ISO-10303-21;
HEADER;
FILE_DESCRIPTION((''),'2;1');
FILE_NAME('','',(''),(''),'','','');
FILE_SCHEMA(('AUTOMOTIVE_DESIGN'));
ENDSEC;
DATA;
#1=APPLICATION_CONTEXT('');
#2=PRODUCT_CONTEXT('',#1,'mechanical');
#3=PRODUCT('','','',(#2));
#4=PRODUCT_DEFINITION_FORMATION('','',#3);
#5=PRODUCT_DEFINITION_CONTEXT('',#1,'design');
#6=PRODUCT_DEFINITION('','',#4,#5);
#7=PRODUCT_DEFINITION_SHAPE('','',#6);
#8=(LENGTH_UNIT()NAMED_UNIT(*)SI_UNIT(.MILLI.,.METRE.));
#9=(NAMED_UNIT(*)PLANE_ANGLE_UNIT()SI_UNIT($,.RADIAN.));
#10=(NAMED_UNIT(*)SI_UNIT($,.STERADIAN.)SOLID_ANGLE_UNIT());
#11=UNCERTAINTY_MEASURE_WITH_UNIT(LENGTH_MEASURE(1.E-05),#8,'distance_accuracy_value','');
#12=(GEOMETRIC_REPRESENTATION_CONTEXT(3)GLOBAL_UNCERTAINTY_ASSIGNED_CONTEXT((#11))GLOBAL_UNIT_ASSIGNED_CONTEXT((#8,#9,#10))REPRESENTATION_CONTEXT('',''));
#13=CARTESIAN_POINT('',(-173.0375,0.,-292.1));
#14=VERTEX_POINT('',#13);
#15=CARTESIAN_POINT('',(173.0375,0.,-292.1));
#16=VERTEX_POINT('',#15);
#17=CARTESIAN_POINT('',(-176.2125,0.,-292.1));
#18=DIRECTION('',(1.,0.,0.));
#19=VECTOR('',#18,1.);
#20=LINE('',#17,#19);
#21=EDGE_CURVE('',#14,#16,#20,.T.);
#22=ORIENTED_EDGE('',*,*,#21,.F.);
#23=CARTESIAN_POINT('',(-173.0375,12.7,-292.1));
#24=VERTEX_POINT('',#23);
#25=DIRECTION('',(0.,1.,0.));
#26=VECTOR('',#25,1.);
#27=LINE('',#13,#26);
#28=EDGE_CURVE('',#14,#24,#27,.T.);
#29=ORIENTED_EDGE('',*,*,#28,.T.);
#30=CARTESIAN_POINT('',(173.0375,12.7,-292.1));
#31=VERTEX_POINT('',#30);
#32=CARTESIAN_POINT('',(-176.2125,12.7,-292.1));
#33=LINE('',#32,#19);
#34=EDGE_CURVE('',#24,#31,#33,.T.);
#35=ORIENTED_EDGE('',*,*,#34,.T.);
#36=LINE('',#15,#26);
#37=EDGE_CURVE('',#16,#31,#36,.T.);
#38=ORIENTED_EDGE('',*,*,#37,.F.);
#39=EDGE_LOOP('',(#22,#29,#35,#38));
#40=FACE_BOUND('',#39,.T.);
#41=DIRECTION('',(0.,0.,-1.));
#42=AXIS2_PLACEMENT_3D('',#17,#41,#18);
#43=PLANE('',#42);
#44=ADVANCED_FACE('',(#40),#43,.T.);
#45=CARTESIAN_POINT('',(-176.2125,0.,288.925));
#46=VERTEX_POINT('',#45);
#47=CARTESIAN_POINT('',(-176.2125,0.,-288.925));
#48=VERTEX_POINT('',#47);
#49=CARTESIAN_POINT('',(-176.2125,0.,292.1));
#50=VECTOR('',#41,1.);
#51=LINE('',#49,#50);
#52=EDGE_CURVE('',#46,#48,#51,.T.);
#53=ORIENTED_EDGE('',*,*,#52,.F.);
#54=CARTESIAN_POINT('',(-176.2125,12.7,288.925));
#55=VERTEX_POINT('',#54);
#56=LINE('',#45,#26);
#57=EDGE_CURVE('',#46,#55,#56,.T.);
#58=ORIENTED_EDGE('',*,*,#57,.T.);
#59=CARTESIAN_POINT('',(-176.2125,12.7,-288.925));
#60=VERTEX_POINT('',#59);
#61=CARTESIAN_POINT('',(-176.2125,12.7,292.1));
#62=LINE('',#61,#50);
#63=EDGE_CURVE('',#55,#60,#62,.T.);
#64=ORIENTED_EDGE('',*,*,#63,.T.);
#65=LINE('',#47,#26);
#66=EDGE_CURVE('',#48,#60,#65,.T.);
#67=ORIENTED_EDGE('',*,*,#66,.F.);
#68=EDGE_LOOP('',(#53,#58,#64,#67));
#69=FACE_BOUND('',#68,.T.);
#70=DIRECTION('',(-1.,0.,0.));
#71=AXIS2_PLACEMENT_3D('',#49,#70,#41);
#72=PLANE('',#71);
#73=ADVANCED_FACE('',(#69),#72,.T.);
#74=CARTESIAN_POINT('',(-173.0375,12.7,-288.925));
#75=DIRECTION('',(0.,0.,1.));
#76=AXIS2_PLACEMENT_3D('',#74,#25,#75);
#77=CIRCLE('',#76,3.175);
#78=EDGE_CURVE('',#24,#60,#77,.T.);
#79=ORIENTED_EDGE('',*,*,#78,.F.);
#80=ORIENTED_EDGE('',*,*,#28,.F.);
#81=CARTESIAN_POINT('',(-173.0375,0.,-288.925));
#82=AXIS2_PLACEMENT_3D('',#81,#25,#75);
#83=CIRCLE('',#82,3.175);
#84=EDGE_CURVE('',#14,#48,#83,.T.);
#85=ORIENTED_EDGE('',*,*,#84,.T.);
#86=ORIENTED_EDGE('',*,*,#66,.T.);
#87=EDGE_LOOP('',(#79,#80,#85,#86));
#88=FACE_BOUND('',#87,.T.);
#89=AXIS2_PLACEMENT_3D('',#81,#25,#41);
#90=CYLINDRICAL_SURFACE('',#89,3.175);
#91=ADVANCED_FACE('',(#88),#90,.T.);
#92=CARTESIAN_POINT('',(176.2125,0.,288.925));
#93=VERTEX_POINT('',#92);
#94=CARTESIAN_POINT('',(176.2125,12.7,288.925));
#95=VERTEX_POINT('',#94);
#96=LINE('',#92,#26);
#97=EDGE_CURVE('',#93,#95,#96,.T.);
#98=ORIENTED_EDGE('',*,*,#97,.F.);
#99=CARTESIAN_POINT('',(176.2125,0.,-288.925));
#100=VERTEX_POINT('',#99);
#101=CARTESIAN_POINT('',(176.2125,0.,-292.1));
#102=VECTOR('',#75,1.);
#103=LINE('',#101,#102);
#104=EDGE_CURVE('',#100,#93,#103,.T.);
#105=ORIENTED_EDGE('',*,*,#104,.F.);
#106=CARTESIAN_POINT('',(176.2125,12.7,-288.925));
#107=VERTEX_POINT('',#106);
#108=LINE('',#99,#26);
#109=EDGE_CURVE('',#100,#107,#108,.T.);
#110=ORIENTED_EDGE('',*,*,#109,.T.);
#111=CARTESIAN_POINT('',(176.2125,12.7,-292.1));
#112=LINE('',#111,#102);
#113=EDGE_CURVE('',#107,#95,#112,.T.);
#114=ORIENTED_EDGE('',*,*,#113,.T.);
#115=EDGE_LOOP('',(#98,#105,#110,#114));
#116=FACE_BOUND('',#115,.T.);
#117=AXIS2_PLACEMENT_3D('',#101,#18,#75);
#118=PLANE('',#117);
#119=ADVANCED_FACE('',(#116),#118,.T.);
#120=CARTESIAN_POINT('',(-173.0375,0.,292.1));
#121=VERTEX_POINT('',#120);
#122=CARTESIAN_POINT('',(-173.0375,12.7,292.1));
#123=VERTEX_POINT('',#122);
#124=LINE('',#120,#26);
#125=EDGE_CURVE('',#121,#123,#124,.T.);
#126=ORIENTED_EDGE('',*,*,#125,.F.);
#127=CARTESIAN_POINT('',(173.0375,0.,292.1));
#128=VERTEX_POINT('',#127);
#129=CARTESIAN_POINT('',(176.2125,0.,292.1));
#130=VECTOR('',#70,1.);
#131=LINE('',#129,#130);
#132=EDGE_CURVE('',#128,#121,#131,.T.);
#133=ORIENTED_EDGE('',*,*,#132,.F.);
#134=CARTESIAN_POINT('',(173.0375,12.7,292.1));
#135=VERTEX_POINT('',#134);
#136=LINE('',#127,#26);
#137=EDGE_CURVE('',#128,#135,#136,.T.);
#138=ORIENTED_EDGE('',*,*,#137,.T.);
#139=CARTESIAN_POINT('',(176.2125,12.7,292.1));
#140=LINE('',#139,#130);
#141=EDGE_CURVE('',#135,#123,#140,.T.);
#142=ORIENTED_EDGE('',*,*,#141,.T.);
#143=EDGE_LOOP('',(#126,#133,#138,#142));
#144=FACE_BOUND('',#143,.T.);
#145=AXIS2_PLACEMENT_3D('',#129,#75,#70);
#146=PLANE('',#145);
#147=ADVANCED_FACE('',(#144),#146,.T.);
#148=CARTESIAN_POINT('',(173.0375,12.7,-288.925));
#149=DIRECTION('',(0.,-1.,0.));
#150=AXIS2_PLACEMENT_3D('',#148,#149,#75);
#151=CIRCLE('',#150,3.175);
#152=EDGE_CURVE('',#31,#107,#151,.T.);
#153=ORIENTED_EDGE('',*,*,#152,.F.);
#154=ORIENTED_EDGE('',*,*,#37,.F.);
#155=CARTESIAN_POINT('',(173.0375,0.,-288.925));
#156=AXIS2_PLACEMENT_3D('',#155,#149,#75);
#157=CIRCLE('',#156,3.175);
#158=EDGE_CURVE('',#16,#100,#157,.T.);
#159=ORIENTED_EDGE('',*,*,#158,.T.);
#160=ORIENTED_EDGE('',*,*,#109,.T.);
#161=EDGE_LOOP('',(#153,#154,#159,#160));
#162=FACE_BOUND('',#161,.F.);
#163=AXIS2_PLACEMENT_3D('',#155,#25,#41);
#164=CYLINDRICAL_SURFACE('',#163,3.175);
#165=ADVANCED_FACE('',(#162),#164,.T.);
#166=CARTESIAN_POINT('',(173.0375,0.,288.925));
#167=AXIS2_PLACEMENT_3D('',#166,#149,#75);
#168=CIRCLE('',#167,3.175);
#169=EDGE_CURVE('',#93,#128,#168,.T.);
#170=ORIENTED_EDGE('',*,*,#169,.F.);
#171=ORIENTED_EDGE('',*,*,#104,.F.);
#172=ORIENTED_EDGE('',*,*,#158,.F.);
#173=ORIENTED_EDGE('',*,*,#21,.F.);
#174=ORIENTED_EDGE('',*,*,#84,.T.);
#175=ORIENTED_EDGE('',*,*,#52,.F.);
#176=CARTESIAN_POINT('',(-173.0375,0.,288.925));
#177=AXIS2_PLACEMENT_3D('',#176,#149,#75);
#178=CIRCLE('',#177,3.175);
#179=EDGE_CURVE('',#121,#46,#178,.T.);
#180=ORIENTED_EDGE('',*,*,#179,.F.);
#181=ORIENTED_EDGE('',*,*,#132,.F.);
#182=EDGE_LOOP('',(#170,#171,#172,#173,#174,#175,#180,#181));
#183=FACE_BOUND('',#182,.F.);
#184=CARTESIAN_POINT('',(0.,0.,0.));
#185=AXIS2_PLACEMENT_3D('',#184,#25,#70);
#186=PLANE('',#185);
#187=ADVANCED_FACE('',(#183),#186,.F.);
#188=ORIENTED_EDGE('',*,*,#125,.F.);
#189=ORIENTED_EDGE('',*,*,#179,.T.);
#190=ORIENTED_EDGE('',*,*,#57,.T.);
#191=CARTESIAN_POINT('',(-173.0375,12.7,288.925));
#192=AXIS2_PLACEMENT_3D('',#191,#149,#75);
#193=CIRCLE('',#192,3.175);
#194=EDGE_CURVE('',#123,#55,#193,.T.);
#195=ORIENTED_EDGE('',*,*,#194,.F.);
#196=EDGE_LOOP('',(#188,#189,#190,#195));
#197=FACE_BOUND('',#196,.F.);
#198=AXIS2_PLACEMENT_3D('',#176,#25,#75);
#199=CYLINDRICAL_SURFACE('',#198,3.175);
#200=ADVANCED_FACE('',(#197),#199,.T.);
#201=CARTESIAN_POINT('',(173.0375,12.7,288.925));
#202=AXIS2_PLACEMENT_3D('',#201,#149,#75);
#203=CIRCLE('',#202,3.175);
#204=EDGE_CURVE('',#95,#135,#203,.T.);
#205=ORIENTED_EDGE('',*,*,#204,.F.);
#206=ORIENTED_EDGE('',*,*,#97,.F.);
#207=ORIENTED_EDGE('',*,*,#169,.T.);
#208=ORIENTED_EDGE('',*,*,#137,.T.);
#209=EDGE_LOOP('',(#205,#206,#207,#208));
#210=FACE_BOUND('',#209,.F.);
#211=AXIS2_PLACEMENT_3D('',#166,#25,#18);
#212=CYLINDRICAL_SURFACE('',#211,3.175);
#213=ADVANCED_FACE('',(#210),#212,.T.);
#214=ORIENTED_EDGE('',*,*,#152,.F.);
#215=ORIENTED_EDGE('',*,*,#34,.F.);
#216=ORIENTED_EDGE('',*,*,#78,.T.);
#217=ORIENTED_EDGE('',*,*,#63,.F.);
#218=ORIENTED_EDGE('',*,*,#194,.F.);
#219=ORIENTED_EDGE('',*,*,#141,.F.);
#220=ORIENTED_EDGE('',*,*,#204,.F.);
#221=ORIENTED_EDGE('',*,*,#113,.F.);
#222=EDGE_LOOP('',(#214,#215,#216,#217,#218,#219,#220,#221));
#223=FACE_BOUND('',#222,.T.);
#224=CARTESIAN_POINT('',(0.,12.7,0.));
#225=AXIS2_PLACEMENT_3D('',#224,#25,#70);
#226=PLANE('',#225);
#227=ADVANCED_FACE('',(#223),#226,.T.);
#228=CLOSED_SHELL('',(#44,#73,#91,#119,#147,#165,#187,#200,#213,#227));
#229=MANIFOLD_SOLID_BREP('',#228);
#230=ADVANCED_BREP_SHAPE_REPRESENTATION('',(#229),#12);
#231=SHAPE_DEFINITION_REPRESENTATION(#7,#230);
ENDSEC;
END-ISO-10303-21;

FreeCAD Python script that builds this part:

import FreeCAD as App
import Part
import Sketcher
from FreeCAD import Vector
Q = App.Units.Quantity


def edges_at(feature, points):
    """Names of the edges that pass closest to the given points."""
    edges = feature.Shape.Edges
    near = lambda p: min(range(len(edges)), key=lambda i: edges[i].distToShape(Part.Vertex(*p))[0])
    return sorted({f"Edge{near(p) + 1}" for p in points})


def add_polygon(sketch, points):
    """Adds a closed chain of lines whose ends are joined by coincident constraints."""
    first, n = sketch.GeometryCount, len(points)
    for a, b in zip(points, points[1:] + points[:1]):
        sketch.addGeometry(Part.LineSegment(App.Vector(*a, 0), App.Vector(*b, 0)), False)
    for i in range(n):
        sketch.addConstraint(Sketcher.Constraint("Coincident", first + i, 2, first + (i + 1) % n, 1))

doc = App.newDocument("Part")
body = doc.addObject("PartDesign::Body", "Body")

sketch1 = body.newObject("Sketcher::SketchObject", "Sketch")
sketch1.AttachmentSupport = (doc.getObject("XZ_Plane"), [""])
sketch1.MapMode = "FlatFace"
add_polygon(sketch1, [(176.2125, -292.1), (-176.2125, -292.1), (-176.2125, 292.1), (176.2125, 292.1)])
sketch1.addConstraint([
    Sketcher.Constraint("Horizontal", 0),
    Sketcher.Constraint("Vertical", 1),
    Sketcher.Constraint("Horizontal", 2),
    Sketcher.Constraint("Vertical", 3),
    Sketcher.Constraint("Symmetric", 0, 2, 2, 2, -1, 1),
    Sketcher.Constraint("DistanceY", 1, 1, 1, 2, Q("23 in")),
    Sketcher.Constraint("DistanceX", 0, 2, 0, 1, Q("13.875 in")),
])
pad1 = body.newObject("PartDesign::Pad", "Pad")
pad1.Profile = sketch1
pad1.Length = Q("0.5 in")
pad1.Reversed = True
doc.recompute()

fillet = body.newObject("PartDesign::Fillet", "Fillet")
fillet.Base = (pad1, edges_at(pad1, [
    (-176.213, 6.35, 292.1),
    (176.213, 6.35, 292.1),
    (176.213, 6.35, -292.1),
    (-176.213, 6.35, -292.1),
]))
fillet.Radius = Q("0.125 in")

doc.recompute()
